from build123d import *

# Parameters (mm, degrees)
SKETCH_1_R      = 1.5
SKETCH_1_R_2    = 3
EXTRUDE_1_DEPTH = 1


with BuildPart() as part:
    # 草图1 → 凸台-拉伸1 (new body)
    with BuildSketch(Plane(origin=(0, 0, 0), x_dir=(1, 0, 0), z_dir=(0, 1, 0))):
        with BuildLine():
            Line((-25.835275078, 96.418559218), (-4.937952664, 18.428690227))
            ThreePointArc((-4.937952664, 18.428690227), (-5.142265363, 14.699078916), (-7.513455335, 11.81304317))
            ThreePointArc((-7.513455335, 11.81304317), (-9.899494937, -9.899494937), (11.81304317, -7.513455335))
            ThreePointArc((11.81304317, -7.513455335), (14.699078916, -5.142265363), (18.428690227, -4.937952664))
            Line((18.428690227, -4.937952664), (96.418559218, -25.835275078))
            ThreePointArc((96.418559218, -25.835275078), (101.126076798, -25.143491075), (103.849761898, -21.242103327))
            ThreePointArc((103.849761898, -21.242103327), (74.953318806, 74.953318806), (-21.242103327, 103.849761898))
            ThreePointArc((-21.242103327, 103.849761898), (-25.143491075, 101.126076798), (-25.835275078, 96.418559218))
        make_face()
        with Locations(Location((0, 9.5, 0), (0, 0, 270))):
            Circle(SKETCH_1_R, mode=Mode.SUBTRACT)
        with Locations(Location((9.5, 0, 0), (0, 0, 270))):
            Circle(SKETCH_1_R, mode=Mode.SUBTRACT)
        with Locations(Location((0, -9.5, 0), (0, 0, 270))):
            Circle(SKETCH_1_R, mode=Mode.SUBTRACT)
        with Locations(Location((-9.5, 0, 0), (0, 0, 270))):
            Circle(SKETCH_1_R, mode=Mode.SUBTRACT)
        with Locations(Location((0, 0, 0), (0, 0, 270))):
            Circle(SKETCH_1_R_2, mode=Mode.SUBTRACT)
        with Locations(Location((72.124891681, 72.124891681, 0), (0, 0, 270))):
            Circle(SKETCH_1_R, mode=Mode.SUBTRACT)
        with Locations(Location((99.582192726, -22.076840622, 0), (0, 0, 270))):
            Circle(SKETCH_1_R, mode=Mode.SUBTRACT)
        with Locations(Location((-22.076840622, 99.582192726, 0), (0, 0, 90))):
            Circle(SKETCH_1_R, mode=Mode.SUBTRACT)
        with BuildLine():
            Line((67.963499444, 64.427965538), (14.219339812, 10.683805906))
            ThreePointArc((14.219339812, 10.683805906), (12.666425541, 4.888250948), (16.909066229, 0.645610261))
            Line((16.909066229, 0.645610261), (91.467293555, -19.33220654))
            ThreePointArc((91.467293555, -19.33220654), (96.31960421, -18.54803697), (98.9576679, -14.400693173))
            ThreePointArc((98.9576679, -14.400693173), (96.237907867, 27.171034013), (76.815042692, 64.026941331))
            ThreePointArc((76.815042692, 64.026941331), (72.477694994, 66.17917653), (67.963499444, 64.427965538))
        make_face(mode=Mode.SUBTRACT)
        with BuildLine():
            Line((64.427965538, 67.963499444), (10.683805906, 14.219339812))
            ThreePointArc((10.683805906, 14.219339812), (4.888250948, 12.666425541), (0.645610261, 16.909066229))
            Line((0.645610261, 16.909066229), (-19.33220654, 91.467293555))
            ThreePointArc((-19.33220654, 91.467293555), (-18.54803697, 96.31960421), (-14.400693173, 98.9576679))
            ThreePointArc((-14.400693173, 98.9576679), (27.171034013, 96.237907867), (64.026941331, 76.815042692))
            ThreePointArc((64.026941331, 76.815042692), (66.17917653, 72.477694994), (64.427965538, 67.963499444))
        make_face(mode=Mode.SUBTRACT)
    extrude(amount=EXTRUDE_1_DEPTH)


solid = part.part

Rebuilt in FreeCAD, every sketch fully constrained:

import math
import FreeCAD as App
import Part
import Sketcher

V = App.Vector
Q = App.Units.Quantity

doc = App.newDocument("Part")
body = doc.addObject("PartDesign::Body", "Body")

# Sketch on XZ plane
sketch1 = doc.addObject("Sketcher::SketchObject", "Sketch")
body.addObject(sketch1)
sketch1.AttachmentSupport = (doc.XZ_Plane, [""])
sketch1.MapMode = "FlatFace"
sketch1.addGeometry([
    Part.LineSegment(V(-25.8, -96.4, 0), V(-4.9, -18.4, 0)),  # 0
    Part.ArcOfCircle(Part.Circle(V(-10.7, -16.9, 0), V(0, 0, 1), 6), math.radians(-15), math.radians(58)),  # 1
    Part.ArcOfCircle(Part.Circle(V(0, 0, 0), V(0, 0, 1), 14), math.radians(32), math.radians(238)),  # 2
    Part.ArcOfCircle(Part.Circle(V(16.9, 10.7, 0), V(0, 0, 1), 6), math.radians(-148), math.radians(-75)),  # 3
    Part.LineSegment(V(18.4, 4.9, 0), V(96.4, 25.8, 0)),  # 4
    Part.ArcOfCircle(Part.Circle(V(98, 20, 0), V(0, 0, 1), 6), math.radians(12), math.radians(105)),  # 5
    Part.ArcOfCircle(Part.Circle(V(0, 0, 0), V(0, 0, 1), 106), math.radians(-102), math.radians(12)),  # 6
    Part.ArcOfCircle(Part.Circle(V(-20, -98, 0), V(0, 0, 1), 6), math.radians(165), math.radians(258)),  # 7
    Part.Circle(V(0, 9.5, 0), V(0, 0, 1), 1.5),  # 8
    Part.Circle(V(-9.5, 0, 0), V(0, 0, 1), 1.5),  # 9
    Part.Circle(V(0, 0, 0), V(0, 0, 1), 3),  # 10
    Part.Circle(V(9.5, 0, 0), V(0, 0, 1), 1.5),  # 11
    Part.Circle(V(0, -9.5, 0), V(0, 0, 1), 1.5),  # 12
    Part.Circle(V(99.6, 22.1, 0), V(0, 0, 1), 1.5),  # 13
    Part.LineSegment(V(14.2, -10.7, 0), V(68, -64.4, 0)),  # 14
    Part.ArcOfCircle(Part.Circle(V(72.2, -60.2, 0), V(0, 0, 1), 6), math.radians(-135), math.radians(-40)),  # 15
    Part.ArcOfCircle(Part.Circle(V(0, 0, 0), V(0, 0, 1), 100), math.radians(-40), math.radians(8)),  # 16
    Part.ArcOfCircle(Part.Circle(V(93, 13.5, 0), V(0, 0, 1), 6), math.radians(8), math.radians(105)),  # 17
    Part.LineSegment(V(91.5, 19.3, 0), V(16.9, -0.6, 0)),  # 18
    Part.ArcOfCircle(Part.Circle(V(18.5, -6.4, 0), V(0, 0, 1), 6), math.radians(105), math.radians(225)),  # 19
    Part.ArcOfCircle(Part.Circle(V(60.2, -72.2, 0), V(0, 0, 1), 6), math.radians(-50), math.radians(45)),  # 20
    Part.LineSegment(V(64.4, -68, 0), V(10.7, -14.2, 0)),  # 21
    Part.ArcOfCircle(Part.Circle(V(6.4, -18.5, 0), V(0, 0, 1), 6), math.radians(45), math.radians(165)),  # 22
    Part.LineSegment(V(0.6, -16.9, 0), V(-19.3, -91.5, 0)),  # 23
    Part.ArcOfCircle(Part.Circle(V(-13.5, -93, 0), V(0, 0, 1), 6), math.radians(165), math.radians(262)),  # 24
    Part.ArcOfCircle(Part.Circle(V(0, 0, 0), V(0, 0, 1), 100), math.radians(-98), math.radians(-50)),  # 25
    Part.Circle(V(-22.1, -99.6, 0), V(0, 0, 1), 1.5),  # 26
    Part.Circle(V(72.1, -72.1, 0), V(0, 0, 1), 1.5),  # 27
], False)
sketch1.addConstraint([
    Sketcher.Constraint("Tangent", 0, 2, 1, 1),
    Sketcher.Constraint("Tangent", 1, 2, 2, 2),
    Sketcher.Constraint("Tangent", 2, 1, 3, 1),
    Sketcher.Constraint("Tangent", 3, 2, 4, 1),
    Sketcher.Constraint("Tangent", 4, 2, 5, 2),
    Sketcher.Constraint("Tangent", 5, 1, 6, 2),
    Sketcher.Constraint("Tangent", 6, 1, 7, 2),
    Sketcher.Constraint("Tangent", 7, 1, 0, 1),
    Sketcher.Constraint("Tangent", 14, 2, 15, 1),
    Sketcher.Constraint("Tangent", 15, 2, 16, 1),
    Sketcher.Constraint("Tangent", 16, 2, 17, 1),
    Sketcher.Constraint("Tangent", 17, 2, 18, 1),
    Sketcher.Constraint("Tangent", 18, 2, 19, 1),
    Sketcher.Constraint("Tangent", 19, 2, 14, 1),
    Sketcher.Constraint("Tangent", 20, 2, 21, 1),
    Sketcher.Constraint("Tangent", 21, 2, 22, 1),
    Sketcher.Constraint("Tangent", 22, 2, 23, 1),
    Sketcher.Constraint("Tangent", 23, 2, 24, 1),
    Sketcher.Constraint("Tangent", 24, 2, 25, 1),
    Sketcher.Constraint("Tangent", 25, 2, 20, 1),
    Sketcher.Constraint("Coincident", 2, 3, -1, 1),
    Sketcher.Constraint("Coincident", 6, 3, -1, 1),
    Sketcher.Constraint("Coincident", 10, 3, -1, 1),
    Sketcher.Constraint("Coincident", 16, 3, -1, 1),
    Sketcher.Constraint("Coincident", 25, 3, -1, 1),
    Sketcher.Constraint("Equal", 1, 3),
    Sketcher.Constraint("Equal", 3, 5),
    Sketcher.Constraint("Equal", 5, 7),
    Sketcher.Constraint("Equal", 8, 9),
    Sketcher.Constraint("Equal", 9, 11),
    Sketcher.Constraint("Equal", 11, 12),
    Sketcher.Constraint("Equal", 12, 13),
    Sketcher.Constraint("Equal", 7, 15),
    Sketcher.Constraint("Equal", 15, 17),
    Sketcher.Constraint("Equal", 17, 19),
    Sketcher.Constraint("Equal", 19, 20),
    Sketcher.Constraint("Equal", 20, 22),
    Sketcher.Constraint("Equal", 22, 24),
    Sketcher.Constraint("Equal", 16, 25),
    Sketcher.Constraint("Equal", 13, 26),
    Sketcher.Constraint("Equal", 26, 27),
    Sketcher.Constraint("Symmetric", 9, 3, 11, 3, -1, 1),
    Sketcher.Constraint("Symmetric", 8, 3, 12, 3, -1, 1),
    Sketcher.Constraint("PointOnObject", 8, 3, -2),
    Sketcher.Constraint("PointOnObject", 9, 3, -1),
    Sketcher.Constraint("Parallel", 4, 18),
    Sketcher.Constraint("Parallel", 14, 21),
    Sketcher.Constraint("Parallel", 0, 23),
    Sketcher.Constraint("Equal", 0, 4),
    Sketcher.Constraint("Equal", 14, 21),
    Sketcher.Constraint("Equal", 18, 23),
    Sketcher.Constraint("Diameter", 8, Q("3 mm")),
    Sketcher.Constraint("Diameter", 10, Q("6 mm")),
    Sketcher.Constraint("Radius", 1, Q("6 mm")),
    Sketcher.Constraint("Radius", 2, Q("14 mm")),
    Sketcher.Constraint("Radius", 6, Q("106 mm")),
    Sketcher.Constraint("Radius", 16, Q("100 mm")),
    Sketcher.Constraint("Angle", 0, Q("75 deg")),
    Sketcher.Constraint("Angle", 4, Q("15 deg")),
    Sketcher.Constraint("Angle", 14, Q("-45 deg")),
    Sketcher.Constraint("DistanceY", -1, 1, 8, 3, Q("9.5 mm")),
    Sketcher.Constraint("DistanceX", 9, 3, -1, 1, Q("9.5 mm")),
    Sketcher.Constraint("DistanceX", -1, 1, 14, 2, Q("67.963499 mm")),
    Sketcher.Constraint("DistanceY", 14, 2, 19, 3, Q("57.9868 mm")),
    Sketcher.Constraint("DistanceX", 17, 2, 13, 3, Q("8.114899 mm")),
    Sketcher.Constraint("DistanceY", 26, 3, 23, 2, Q("8.114899 mm")),
    Sketcher.Constraint("DistanceY", -1, 1, 5, 3, Q("20.03972 mm")),
    Sketcher.Constraint("DistanceY", -1, 1, 13, 3, Q("22.076841 mm")),
    Sketcher.Constraint("DistanceX", 26, 3, -1, 1, Q("22.076841 mm")),
    Sketcher.Constraint("DistanceX", -1, 1, 27, 3, Q("72.124892 mm")),
    Sketcher.Constraint("DistanceY", 27, 3, -1, 1, Q("72.124892 mm")),
])
pad1 = doc.addObject("PartDesign::Pad", "Pad")
body.addObject(pad1)
pad1.Profile = sketch1
pad1.Length = 1
pad1.Reversed = True

doc.recompute()
